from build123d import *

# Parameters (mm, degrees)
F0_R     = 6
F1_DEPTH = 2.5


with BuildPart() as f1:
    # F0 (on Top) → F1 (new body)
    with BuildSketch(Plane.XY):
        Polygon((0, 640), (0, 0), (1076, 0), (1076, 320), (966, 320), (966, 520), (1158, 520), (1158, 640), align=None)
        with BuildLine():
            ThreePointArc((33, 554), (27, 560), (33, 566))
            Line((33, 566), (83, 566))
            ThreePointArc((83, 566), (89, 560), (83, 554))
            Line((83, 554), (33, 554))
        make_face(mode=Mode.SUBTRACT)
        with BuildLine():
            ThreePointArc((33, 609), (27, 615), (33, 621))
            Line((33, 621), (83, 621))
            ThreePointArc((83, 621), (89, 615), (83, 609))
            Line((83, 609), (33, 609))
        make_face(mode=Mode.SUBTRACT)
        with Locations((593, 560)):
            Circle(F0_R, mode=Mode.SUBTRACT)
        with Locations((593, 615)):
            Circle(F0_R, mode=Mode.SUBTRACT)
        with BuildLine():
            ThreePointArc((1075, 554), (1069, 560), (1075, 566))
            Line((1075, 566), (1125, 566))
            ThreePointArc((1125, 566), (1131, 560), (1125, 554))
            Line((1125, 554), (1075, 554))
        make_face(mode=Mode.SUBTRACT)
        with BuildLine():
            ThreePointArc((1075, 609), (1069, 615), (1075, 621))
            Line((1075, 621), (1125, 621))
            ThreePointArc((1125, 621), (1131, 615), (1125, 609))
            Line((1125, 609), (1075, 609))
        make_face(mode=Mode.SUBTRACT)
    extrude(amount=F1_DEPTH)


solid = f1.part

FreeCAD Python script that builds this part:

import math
import FreeCAD as App
import Part
import Sketcher
from FreeCAD import Vector

doc = App.newDocument("Part")
body = doc.addObject("PartDesign::Body", "Body")

sketch1 = body.newObject("Sketcher::SketchObject", "Sketch")
sketch1.AttachmentSupport = (doc.getObject("XY_Plane"), [""])
sketch1.MapMode = "FlatFace"
sketch1.addGeometry([
    Part.LineSegment(Vector(0, 640, 0), Vector(0, 0, 0)),
    Part.LineSegment(Vector(0, 0, 0), Vector(1076, 0, 0)),
    Part.LineSegment(Vector(1076, 0, 0), Vector(1076, 320, 0)),
    Part.LineSegment(Vector(1076, 320, 0), Vector(966, 320, 0)),
    Part.LineSegment(Vector(966, 320, 0), Vector(966, 520, 0)),
    Part.LineSegment(Vector(966, 520, 0), Vector(1158, 520, 0)),
    Part.LineSegment(Vector(1158, 520, 0), Vector(1158, 640, 0)),
    Part.LineSegment(Vector(1158, 640, 0), Vector(0, 640, 0)),
    Part.LineSegment(Vector(83, 554, 0), Vector(33, 554, 0)),
    Part.ArcOfCircle(Part.Circle(Vector(33, 560, 0), Vector(0, 0, 1), 6), math.radians(90), math.radians(270)),
    Part.LineSegment(Vector(33, 566, 0), Vector(83, 566, 0)),
    Part.ArcOfCircle(Part.Circle(Vector(83, 560, 0), Vector(0, 0, 1), 6), math.radians(-90), math.radians(90)),
    Part.Circle(Vector(593, 560, 0), Vector(0, 0, 1), 6),
    Part.LineSegment(Vector(1125, 554, 0), Vector(1075, 554, 0)),
    Part.ArcOfCircle(Part.Circle(Vector(1075, 560, 0), Vector(0, 0, 1), 6), math.radians(90), math.radians(270)),
    Part.LineSegment(Vector(1075, 566, 0), Vector(1125, 566, 0)),
    Part.ArcOfCircle(Part.Circle(Vector(1125, 560, 0), Vector(0, 0, 1), 6), math.radians(-90), math.radians(90)),
    Part.LineSegment(Vector(83, 609, 0), Vector(33, 609, 0)),
    Part.ArcOfCircle(Part.Circle(Vector(33, 615, 0), Vector(0, 0, 1), 6), math.radians(90), math.radians(270)),
    Part.LineSegment(Vector(33, 621, 0), Vector(83, 621, 0)),
    Part.ArcOfCircle(Part.Circle(Vector(83, 615, 0), Vector(0, 0, 1), 6), math.radians(-90), math.radians(90)),
    Part.Circle(Vector(593, 615, 0), Vector(0, 0, 1), 6),
    Part.LineSegment(Vector(1125, 609, 0), Vector(1075, 609, 0)),
    Part.ArcOfCircle(Part.Circle(Vector(1075, 615, 0), Vector(0, 0, 1), 6), math.radians(90), math.radians(270)),
    Part.LineSegment(Vector(1075, 621, 0), Vector(1125, 621, 0)),
    Part.ArcOfCircle(Part.Circle(Vector(1125, 615, 0), Vector(0, 0, 1), 6), math.radians(-90), math.radians(90)),
], False)
sketch1.addConstraint([
    Sketcher.Constraint("Coincident", 0, 2, 1, 1),
    Sketcher.Constraint("Coincident", 1, 2, 2, 1),
    Sketcher.Constraint("Coincident", 2, 2, 3, 1),
    Sketcher.Constraint("Coincident", 3, 2, 4, 1),
    Sketcher.Constraint("Coincident", 4, 2, 5, 1),
    Sketcher.Constraint("Coincident", 5, 2, 6, 1),
    Sketcher.Constraint("Coincident", 6, 2, 7, 1),
    Sketcher.Constraint("Coincident", 7, 2, 0, 1),
    Sketcher.Constraint("Tangent", 8, 2, 9, 2),
    Sketcher.Constraint("Tangent", 9, 1, 10, 1),
    Sketcher.Constraint("Tangent", 10, 2, 11, 2),
    Sketcher.Constraint("Tangent", 11, 1, 8, 1),
    Sketcher.Constraint("Tangent", 13, 2, 14, 2),
    Sketcher.Constraint("Tangent", 14, 1, 15, 1),
    Sketcher.Constraint("Tangent", 15, 2, 16, 2),
    Sketcher.Constraint("Tangent", 16, 1, 13, 1),
    Sketcher.Constraint("Tangent", 17, 2, 18, 2),
    Sketcher.Constraint("Tangent", 18, 1, 19, 1),
    Sketcher.Constraint("Tangent", 19, 2, 20, 2),
    Sketcher.Constraint("Tangent", 20, 1, 17, 1),
    Sketcher.Constraint("Tangent", 22, 2, 23, 2),
    Sketcher.Constraint("Tangent", 23, 1, 24, 1),
    Sketcher.Constraint("Tangent", 24, 2, 25, 2),
    Sketcher.Constraint("Tangent", 25, 1, 22, 1),
    Sketcher.Constraint("Vertical", 0),
    Sketcher.Constraint("Horizontal", 1),
    Sketcher.Constraint("Vertical", 2),
    Sketcher.Constraint("Horizontal", 3),
    Sketcher.Constraint("Vertical", 4),
    Sketcher.Constraint("Horizontal", 5),
    Sketcher.Constraint("Vertical", 6),
    Sketcher.Constraint("Horizontal", 7),
    Sketcher.Constraint("Horizontal", 8),
    Sketcher.Constraint("Horizontal", 10),
    Sketcher.Constraint("Horizontal", 13),
    Sketcher.Constraint("Horizontal", 15),
    Sketcher.Constraint("Horizontal", 17),
    Sketcher.Constraint("Horizontal", 19),
    Sketcher.Constraint("Horizontal", 22),
    Sketcher.Constraint("Horizontal", 24),
    Sketcher.Constraint("Coincident", 0, 2, -1, 1),
    Sketcher.Constraint("Equal", 11, 12),
    Sketcher.Constraint("Equal", 12, 14),
    Sketcher.Constraint("Equal", 16, 18),
    Sketcher.Constraint("Equal", 20, 21),
    Sketcher.Constraint("Equal", 21, 23),
    Sketcher.Constraint("Horizontal", 11, 3, 12, 3),
    Sketcher.Constraint("Horizontal", 12, 3, 14, 3),
    Sketcher.Constraint("Horizontal", 20, 3, 21, 3),
    Sketcher.Constraint("Horizontal", 21, 3, 23, 3),
    Sketcher.Constraint("Vertical", 9, 3, 18, 3),
    Sketcher.Constraint("Vertical", 11, 3, 20, 3),
    Sketcher.Constraint("Vertical", 12, 3, 21, 3),
    Sketcher.Constraint("Vertical", 14, 3, 23, 3),
    Sketcher.Constraint("Vertical", 16, 3, 25, 3),
    Sketcher.Constraint("Equal", 10, 13),
    Sketcher.Constraint("Diameter", 12, 12.0),
    Sketcher.Constraint("DistanceX", 1, 1, 1, 2, 1076.0),
    Sketcher.Constraint("DistanceX", 3, 2, 3, 1, 110.0),
    Sketcher.Constraint("DistanceX", 5, 1, 5, 2, 192.0),
    Sketcher.Constraint("DistanceX", 8, 2, 8, 1, 50.0),
    Sketcher.Constraint("DistanceY", 0, 2, 0, 1, 640.0),
    Sketcher.Constraint("DistanceY", 2, 1, 2, 2, 320.0),
    Sketcher.Constraint("DistanceY", 4, 1, 4, 2, 200.0),
    Sketcher.Constraint("DistanceX", -1, 1, 9, 3, 33.0),
    Sketcher.Constraint("DistanceY", -1, 1, 9, 3, 560.0),
    Sketcher.Constraint("DistanceX", -1, 1, 12, 3, 593.0),
    Sketcher.Constraint("DistanceX", -1, 1, 14, 3, 1075.0),
    Sketcher.Constraint("DistanceY", -1, 1, 18, 3, 615.0),
])
pad1 = body.newObject("PartDesign::Pad", "Pad")
pad1.Profile = sketch1
pad1.Length = 2.5

doc.recompute()
